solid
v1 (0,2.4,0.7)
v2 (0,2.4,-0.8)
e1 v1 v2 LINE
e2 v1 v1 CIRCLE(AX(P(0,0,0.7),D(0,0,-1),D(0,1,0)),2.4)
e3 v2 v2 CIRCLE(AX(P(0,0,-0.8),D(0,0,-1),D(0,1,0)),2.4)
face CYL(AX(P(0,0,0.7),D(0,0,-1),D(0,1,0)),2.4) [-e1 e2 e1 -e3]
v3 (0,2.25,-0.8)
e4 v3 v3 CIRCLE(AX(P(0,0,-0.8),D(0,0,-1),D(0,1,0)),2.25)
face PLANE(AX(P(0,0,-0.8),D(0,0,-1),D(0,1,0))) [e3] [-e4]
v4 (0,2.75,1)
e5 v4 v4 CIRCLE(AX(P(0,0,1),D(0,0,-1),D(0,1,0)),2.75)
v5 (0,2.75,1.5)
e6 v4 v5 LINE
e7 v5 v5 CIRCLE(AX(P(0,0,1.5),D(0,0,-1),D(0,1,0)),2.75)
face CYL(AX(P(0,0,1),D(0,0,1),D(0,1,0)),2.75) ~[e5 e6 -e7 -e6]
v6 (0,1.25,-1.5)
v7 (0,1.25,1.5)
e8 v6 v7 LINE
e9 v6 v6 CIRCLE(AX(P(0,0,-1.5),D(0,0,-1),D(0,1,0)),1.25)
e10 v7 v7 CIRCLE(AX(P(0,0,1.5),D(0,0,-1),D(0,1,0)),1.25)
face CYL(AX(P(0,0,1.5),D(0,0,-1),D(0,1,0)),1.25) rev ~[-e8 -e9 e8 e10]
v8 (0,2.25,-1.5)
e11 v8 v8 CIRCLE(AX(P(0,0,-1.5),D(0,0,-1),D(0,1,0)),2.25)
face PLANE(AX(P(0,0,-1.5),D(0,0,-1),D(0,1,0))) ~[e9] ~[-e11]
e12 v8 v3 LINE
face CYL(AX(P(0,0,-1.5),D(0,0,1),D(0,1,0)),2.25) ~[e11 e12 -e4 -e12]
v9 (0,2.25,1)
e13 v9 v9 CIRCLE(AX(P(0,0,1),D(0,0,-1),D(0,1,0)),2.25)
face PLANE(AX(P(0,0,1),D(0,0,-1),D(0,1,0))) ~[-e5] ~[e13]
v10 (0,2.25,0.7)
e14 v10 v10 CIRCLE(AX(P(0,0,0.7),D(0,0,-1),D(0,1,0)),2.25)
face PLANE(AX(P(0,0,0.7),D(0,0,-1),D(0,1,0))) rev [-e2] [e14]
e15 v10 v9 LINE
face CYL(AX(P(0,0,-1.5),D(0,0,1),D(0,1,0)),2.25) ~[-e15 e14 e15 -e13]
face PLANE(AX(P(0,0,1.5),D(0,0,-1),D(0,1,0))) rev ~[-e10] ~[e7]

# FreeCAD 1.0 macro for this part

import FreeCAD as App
import Part
import Sketcher


def add_polygon(sketch, points):
    """Adds a closed chain of lines whose ends are joined by coincident constraints."""
    first, n = sketch.GeometryCount, len(points)
    for a, b in zip(points, points[1:] + points[:1]):
        sketch.addGeometry(Part.LineSegment(App.Vector(*a, 0), App.Vector(*b, 0)), False)
    for i in range(n):
        sketch.addConstraint(Sketcher.Constraint("Coincident", first + i, 2, first + (i + 1) % n, 1))

doc = App.newDocument("Part")
body = doc.addObject("PartDesign::Body", "Body")

# Sketch on YZ plane
sketch1 = doc.addObject("Sketcher::SketchObject", "Sketch")
body.addObject(sketch1)
sketch1.AttachmentSupport = (doc.YZ_Plane, [""])
sketch1.MapMode = "FlatFace"
add_polygon(sketch1, [(2.75, 1), (2.75, 1.5), (1.25, 1.5), (1.25, -1.5), (2.25, -1.5), (2.25, -0.8), (2.4, -0.8), (2.4, 0.7), (2.25, 0.7), (2.25, 1)])  # lines 0-9
sketch1.addConstraint([
    Sketcher.Constraint("Vertical", 0),
    Sketcher.Constraint("Horizontal", 1),
    Sketcher.Constraint("Vertical", 2),
    Sketcher.Constraint("Horizontal", 3),
    Sketcher.Constraint("Vertical", 4),
    Sketcher.Constraint("Horizontal", 5),
    Sketcher.Constraint("Vertical", 6),
    Sketcher.Constraint("Horizontal", 7),
    Sketcher.Constraint("Vertical", 8),
    Sketcher.Constraint("Horizontal", 9),
    Sketcher.Constraint("Vertical", 4, 2, 7, 2),
    Sketcher.Constraint("Equal", 9, 0),
    Sketcher.Constraint("Equal", 1, 6),
    Sketcher.Constraint("DistanceY", 2, 2, 2, 1, 3.0),
    Sketcher.Constraint("DistanceX", 1, 2, 1, 1, 1.5),
    Sketcher.Constraint("DistanceX", 9, 1, 9, 2, 0.5),
    Sketcher.Constraint("DistanceY", 8, 1, 8, 2, 0.3),
    Sketcher.Constraint("DistanceY", -1, 1, 0, 2, 1.5),
    Sketcher.Constraint("DistanceX", 5, 1, 5, 2, 0.15),
    Sketcher.Constraint("DistanceX", -1, 1, 5, 2, 2.4),
])
revolution = doc.addObject("PartDesign::Revolution", "Revolution")
body.addObject(revolution)
revolution.Profile = sketch1
revolution.ReferenceAxis = (sketch1, ["V_Axis"])
revolution.Angle = 360

doc.recompute()
